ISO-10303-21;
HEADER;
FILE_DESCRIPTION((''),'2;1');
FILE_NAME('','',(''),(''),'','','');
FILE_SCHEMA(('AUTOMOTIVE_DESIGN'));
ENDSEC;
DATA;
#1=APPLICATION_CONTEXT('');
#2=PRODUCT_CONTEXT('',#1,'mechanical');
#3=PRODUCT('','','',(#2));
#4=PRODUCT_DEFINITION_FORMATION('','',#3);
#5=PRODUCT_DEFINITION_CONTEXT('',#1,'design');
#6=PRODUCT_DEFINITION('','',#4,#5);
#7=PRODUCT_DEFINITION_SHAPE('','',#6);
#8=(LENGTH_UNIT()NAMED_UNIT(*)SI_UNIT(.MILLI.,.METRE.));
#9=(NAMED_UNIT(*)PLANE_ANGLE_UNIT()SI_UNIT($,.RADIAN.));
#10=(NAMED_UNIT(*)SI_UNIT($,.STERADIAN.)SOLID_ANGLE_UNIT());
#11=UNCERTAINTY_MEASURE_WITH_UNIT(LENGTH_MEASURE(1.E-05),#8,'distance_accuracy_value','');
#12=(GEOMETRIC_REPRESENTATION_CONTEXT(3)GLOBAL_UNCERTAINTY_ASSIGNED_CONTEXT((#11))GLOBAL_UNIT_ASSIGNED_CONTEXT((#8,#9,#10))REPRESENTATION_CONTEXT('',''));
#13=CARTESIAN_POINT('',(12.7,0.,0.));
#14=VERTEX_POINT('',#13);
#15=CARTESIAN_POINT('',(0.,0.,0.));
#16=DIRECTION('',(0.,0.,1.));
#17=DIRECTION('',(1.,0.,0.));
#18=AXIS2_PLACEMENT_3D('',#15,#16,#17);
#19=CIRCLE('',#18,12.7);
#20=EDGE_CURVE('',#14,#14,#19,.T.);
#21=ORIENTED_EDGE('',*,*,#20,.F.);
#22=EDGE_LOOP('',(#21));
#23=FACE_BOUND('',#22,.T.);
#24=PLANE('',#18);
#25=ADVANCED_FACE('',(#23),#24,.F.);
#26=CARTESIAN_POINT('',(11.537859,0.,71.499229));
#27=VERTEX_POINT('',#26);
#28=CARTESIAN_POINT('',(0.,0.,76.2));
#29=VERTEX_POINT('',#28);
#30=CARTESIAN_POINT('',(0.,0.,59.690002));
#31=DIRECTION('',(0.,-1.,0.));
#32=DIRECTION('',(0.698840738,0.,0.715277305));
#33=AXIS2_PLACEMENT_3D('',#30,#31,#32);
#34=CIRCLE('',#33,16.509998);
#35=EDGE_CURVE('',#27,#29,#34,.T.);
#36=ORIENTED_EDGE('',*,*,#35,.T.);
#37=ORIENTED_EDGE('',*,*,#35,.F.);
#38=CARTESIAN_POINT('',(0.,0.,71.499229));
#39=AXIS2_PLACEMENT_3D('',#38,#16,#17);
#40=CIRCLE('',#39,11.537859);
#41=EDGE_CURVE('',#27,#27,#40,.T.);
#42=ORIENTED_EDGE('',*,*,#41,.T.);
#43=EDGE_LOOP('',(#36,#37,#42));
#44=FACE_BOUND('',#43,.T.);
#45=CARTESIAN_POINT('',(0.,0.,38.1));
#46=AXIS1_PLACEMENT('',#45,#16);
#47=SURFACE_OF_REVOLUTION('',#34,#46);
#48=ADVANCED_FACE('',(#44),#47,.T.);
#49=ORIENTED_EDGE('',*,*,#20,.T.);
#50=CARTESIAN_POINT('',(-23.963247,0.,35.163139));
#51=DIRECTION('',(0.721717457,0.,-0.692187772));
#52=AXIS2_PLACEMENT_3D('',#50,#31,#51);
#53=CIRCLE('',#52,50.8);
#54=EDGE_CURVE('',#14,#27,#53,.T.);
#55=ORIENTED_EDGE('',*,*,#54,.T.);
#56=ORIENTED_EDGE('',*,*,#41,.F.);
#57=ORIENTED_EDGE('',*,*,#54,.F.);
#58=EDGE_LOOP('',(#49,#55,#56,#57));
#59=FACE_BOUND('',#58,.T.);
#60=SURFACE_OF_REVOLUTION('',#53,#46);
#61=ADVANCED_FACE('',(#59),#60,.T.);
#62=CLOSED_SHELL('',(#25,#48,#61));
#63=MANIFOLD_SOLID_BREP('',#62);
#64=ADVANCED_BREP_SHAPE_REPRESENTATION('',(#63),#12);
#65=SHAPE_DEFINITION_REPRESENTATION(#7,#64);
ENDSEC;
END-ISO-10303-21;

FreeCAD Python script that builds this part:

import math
import FreeCAD as App
import Part
import Sketcher
Q = App.Units.Quantity

doc = App.newDocument("Part")
body = doc.addObject("PartDesign::Body", "Body")

# Sketch on XZ plane
sketch1 = doc.addObject("Sketcher::SketchObject", "Sketch")
body.addObject(sketch1)
sketch1.AttachmentSupport = (doc.XZ_Plane, [""])
sketch1.MapMode = "FlatFace"
sketch1.addGeometry([
    Part.LineSegment(App.Vector(0, 0, 0), App.Vector(13, 0, 0)),
    Part.ArcOfCircle(Part.Circle(App.Vector(-24, 35, 0), App.Vector(0, 0, 1), 51), math.radians(-44), math.radians(46)),
    Part.ArcOfCircle(Part.Circle(App.Vector(0, 60, 0), App.Vector(0, 0, 1), 17), math.radians(46), math.radians(90)),
    Part.LineSegment(App.Vector(0, 76, 0), App.Vector(0, 0, 0)),
], False)
sketch1.addConstraint([
    Sketcher.Constraint("Coincident", 0, 2, 1, 1),
    Sketcher.Constraint("Tangent", 1, 2, 2, 1),
    Sketcher.Constraint("Coincident", 2, 2, 3, 1),
    Sketcher.Constraint("Coincident", 3, 2, 0, 1),
    Sketcher.Constraint("Horizontal", 0),
    Sketcher.Constraint("Vertical", 3),
    Sketcher.Constraint("Coincident", 3, 2, -1, 1),
    Sketcher.Constraint("PointOnObject", 2, 3, -2),
    Sketcher.Constraint("Radius", 1, Q("2 in")),
    Sketcher.Constraint("DistanceY", 3, 2, 3, 1, Q("3 in")),
    Sketcher.Constraint("Radius", 2, Q("0.6499999 in")),
    Sketcher.Constraint("DistanceX", 0, 1, 0, 2, Q("0.5 in")),
])
revolution = doc.addObject("PartDesign::Revolution", "Revolution")
body.addObject(revolution)
revolution.Profile = sketch1
revolution.ReferenceAxis = (sketch1, ["V_Axis"])
revolution.Angle = 360

doc.recompute()
